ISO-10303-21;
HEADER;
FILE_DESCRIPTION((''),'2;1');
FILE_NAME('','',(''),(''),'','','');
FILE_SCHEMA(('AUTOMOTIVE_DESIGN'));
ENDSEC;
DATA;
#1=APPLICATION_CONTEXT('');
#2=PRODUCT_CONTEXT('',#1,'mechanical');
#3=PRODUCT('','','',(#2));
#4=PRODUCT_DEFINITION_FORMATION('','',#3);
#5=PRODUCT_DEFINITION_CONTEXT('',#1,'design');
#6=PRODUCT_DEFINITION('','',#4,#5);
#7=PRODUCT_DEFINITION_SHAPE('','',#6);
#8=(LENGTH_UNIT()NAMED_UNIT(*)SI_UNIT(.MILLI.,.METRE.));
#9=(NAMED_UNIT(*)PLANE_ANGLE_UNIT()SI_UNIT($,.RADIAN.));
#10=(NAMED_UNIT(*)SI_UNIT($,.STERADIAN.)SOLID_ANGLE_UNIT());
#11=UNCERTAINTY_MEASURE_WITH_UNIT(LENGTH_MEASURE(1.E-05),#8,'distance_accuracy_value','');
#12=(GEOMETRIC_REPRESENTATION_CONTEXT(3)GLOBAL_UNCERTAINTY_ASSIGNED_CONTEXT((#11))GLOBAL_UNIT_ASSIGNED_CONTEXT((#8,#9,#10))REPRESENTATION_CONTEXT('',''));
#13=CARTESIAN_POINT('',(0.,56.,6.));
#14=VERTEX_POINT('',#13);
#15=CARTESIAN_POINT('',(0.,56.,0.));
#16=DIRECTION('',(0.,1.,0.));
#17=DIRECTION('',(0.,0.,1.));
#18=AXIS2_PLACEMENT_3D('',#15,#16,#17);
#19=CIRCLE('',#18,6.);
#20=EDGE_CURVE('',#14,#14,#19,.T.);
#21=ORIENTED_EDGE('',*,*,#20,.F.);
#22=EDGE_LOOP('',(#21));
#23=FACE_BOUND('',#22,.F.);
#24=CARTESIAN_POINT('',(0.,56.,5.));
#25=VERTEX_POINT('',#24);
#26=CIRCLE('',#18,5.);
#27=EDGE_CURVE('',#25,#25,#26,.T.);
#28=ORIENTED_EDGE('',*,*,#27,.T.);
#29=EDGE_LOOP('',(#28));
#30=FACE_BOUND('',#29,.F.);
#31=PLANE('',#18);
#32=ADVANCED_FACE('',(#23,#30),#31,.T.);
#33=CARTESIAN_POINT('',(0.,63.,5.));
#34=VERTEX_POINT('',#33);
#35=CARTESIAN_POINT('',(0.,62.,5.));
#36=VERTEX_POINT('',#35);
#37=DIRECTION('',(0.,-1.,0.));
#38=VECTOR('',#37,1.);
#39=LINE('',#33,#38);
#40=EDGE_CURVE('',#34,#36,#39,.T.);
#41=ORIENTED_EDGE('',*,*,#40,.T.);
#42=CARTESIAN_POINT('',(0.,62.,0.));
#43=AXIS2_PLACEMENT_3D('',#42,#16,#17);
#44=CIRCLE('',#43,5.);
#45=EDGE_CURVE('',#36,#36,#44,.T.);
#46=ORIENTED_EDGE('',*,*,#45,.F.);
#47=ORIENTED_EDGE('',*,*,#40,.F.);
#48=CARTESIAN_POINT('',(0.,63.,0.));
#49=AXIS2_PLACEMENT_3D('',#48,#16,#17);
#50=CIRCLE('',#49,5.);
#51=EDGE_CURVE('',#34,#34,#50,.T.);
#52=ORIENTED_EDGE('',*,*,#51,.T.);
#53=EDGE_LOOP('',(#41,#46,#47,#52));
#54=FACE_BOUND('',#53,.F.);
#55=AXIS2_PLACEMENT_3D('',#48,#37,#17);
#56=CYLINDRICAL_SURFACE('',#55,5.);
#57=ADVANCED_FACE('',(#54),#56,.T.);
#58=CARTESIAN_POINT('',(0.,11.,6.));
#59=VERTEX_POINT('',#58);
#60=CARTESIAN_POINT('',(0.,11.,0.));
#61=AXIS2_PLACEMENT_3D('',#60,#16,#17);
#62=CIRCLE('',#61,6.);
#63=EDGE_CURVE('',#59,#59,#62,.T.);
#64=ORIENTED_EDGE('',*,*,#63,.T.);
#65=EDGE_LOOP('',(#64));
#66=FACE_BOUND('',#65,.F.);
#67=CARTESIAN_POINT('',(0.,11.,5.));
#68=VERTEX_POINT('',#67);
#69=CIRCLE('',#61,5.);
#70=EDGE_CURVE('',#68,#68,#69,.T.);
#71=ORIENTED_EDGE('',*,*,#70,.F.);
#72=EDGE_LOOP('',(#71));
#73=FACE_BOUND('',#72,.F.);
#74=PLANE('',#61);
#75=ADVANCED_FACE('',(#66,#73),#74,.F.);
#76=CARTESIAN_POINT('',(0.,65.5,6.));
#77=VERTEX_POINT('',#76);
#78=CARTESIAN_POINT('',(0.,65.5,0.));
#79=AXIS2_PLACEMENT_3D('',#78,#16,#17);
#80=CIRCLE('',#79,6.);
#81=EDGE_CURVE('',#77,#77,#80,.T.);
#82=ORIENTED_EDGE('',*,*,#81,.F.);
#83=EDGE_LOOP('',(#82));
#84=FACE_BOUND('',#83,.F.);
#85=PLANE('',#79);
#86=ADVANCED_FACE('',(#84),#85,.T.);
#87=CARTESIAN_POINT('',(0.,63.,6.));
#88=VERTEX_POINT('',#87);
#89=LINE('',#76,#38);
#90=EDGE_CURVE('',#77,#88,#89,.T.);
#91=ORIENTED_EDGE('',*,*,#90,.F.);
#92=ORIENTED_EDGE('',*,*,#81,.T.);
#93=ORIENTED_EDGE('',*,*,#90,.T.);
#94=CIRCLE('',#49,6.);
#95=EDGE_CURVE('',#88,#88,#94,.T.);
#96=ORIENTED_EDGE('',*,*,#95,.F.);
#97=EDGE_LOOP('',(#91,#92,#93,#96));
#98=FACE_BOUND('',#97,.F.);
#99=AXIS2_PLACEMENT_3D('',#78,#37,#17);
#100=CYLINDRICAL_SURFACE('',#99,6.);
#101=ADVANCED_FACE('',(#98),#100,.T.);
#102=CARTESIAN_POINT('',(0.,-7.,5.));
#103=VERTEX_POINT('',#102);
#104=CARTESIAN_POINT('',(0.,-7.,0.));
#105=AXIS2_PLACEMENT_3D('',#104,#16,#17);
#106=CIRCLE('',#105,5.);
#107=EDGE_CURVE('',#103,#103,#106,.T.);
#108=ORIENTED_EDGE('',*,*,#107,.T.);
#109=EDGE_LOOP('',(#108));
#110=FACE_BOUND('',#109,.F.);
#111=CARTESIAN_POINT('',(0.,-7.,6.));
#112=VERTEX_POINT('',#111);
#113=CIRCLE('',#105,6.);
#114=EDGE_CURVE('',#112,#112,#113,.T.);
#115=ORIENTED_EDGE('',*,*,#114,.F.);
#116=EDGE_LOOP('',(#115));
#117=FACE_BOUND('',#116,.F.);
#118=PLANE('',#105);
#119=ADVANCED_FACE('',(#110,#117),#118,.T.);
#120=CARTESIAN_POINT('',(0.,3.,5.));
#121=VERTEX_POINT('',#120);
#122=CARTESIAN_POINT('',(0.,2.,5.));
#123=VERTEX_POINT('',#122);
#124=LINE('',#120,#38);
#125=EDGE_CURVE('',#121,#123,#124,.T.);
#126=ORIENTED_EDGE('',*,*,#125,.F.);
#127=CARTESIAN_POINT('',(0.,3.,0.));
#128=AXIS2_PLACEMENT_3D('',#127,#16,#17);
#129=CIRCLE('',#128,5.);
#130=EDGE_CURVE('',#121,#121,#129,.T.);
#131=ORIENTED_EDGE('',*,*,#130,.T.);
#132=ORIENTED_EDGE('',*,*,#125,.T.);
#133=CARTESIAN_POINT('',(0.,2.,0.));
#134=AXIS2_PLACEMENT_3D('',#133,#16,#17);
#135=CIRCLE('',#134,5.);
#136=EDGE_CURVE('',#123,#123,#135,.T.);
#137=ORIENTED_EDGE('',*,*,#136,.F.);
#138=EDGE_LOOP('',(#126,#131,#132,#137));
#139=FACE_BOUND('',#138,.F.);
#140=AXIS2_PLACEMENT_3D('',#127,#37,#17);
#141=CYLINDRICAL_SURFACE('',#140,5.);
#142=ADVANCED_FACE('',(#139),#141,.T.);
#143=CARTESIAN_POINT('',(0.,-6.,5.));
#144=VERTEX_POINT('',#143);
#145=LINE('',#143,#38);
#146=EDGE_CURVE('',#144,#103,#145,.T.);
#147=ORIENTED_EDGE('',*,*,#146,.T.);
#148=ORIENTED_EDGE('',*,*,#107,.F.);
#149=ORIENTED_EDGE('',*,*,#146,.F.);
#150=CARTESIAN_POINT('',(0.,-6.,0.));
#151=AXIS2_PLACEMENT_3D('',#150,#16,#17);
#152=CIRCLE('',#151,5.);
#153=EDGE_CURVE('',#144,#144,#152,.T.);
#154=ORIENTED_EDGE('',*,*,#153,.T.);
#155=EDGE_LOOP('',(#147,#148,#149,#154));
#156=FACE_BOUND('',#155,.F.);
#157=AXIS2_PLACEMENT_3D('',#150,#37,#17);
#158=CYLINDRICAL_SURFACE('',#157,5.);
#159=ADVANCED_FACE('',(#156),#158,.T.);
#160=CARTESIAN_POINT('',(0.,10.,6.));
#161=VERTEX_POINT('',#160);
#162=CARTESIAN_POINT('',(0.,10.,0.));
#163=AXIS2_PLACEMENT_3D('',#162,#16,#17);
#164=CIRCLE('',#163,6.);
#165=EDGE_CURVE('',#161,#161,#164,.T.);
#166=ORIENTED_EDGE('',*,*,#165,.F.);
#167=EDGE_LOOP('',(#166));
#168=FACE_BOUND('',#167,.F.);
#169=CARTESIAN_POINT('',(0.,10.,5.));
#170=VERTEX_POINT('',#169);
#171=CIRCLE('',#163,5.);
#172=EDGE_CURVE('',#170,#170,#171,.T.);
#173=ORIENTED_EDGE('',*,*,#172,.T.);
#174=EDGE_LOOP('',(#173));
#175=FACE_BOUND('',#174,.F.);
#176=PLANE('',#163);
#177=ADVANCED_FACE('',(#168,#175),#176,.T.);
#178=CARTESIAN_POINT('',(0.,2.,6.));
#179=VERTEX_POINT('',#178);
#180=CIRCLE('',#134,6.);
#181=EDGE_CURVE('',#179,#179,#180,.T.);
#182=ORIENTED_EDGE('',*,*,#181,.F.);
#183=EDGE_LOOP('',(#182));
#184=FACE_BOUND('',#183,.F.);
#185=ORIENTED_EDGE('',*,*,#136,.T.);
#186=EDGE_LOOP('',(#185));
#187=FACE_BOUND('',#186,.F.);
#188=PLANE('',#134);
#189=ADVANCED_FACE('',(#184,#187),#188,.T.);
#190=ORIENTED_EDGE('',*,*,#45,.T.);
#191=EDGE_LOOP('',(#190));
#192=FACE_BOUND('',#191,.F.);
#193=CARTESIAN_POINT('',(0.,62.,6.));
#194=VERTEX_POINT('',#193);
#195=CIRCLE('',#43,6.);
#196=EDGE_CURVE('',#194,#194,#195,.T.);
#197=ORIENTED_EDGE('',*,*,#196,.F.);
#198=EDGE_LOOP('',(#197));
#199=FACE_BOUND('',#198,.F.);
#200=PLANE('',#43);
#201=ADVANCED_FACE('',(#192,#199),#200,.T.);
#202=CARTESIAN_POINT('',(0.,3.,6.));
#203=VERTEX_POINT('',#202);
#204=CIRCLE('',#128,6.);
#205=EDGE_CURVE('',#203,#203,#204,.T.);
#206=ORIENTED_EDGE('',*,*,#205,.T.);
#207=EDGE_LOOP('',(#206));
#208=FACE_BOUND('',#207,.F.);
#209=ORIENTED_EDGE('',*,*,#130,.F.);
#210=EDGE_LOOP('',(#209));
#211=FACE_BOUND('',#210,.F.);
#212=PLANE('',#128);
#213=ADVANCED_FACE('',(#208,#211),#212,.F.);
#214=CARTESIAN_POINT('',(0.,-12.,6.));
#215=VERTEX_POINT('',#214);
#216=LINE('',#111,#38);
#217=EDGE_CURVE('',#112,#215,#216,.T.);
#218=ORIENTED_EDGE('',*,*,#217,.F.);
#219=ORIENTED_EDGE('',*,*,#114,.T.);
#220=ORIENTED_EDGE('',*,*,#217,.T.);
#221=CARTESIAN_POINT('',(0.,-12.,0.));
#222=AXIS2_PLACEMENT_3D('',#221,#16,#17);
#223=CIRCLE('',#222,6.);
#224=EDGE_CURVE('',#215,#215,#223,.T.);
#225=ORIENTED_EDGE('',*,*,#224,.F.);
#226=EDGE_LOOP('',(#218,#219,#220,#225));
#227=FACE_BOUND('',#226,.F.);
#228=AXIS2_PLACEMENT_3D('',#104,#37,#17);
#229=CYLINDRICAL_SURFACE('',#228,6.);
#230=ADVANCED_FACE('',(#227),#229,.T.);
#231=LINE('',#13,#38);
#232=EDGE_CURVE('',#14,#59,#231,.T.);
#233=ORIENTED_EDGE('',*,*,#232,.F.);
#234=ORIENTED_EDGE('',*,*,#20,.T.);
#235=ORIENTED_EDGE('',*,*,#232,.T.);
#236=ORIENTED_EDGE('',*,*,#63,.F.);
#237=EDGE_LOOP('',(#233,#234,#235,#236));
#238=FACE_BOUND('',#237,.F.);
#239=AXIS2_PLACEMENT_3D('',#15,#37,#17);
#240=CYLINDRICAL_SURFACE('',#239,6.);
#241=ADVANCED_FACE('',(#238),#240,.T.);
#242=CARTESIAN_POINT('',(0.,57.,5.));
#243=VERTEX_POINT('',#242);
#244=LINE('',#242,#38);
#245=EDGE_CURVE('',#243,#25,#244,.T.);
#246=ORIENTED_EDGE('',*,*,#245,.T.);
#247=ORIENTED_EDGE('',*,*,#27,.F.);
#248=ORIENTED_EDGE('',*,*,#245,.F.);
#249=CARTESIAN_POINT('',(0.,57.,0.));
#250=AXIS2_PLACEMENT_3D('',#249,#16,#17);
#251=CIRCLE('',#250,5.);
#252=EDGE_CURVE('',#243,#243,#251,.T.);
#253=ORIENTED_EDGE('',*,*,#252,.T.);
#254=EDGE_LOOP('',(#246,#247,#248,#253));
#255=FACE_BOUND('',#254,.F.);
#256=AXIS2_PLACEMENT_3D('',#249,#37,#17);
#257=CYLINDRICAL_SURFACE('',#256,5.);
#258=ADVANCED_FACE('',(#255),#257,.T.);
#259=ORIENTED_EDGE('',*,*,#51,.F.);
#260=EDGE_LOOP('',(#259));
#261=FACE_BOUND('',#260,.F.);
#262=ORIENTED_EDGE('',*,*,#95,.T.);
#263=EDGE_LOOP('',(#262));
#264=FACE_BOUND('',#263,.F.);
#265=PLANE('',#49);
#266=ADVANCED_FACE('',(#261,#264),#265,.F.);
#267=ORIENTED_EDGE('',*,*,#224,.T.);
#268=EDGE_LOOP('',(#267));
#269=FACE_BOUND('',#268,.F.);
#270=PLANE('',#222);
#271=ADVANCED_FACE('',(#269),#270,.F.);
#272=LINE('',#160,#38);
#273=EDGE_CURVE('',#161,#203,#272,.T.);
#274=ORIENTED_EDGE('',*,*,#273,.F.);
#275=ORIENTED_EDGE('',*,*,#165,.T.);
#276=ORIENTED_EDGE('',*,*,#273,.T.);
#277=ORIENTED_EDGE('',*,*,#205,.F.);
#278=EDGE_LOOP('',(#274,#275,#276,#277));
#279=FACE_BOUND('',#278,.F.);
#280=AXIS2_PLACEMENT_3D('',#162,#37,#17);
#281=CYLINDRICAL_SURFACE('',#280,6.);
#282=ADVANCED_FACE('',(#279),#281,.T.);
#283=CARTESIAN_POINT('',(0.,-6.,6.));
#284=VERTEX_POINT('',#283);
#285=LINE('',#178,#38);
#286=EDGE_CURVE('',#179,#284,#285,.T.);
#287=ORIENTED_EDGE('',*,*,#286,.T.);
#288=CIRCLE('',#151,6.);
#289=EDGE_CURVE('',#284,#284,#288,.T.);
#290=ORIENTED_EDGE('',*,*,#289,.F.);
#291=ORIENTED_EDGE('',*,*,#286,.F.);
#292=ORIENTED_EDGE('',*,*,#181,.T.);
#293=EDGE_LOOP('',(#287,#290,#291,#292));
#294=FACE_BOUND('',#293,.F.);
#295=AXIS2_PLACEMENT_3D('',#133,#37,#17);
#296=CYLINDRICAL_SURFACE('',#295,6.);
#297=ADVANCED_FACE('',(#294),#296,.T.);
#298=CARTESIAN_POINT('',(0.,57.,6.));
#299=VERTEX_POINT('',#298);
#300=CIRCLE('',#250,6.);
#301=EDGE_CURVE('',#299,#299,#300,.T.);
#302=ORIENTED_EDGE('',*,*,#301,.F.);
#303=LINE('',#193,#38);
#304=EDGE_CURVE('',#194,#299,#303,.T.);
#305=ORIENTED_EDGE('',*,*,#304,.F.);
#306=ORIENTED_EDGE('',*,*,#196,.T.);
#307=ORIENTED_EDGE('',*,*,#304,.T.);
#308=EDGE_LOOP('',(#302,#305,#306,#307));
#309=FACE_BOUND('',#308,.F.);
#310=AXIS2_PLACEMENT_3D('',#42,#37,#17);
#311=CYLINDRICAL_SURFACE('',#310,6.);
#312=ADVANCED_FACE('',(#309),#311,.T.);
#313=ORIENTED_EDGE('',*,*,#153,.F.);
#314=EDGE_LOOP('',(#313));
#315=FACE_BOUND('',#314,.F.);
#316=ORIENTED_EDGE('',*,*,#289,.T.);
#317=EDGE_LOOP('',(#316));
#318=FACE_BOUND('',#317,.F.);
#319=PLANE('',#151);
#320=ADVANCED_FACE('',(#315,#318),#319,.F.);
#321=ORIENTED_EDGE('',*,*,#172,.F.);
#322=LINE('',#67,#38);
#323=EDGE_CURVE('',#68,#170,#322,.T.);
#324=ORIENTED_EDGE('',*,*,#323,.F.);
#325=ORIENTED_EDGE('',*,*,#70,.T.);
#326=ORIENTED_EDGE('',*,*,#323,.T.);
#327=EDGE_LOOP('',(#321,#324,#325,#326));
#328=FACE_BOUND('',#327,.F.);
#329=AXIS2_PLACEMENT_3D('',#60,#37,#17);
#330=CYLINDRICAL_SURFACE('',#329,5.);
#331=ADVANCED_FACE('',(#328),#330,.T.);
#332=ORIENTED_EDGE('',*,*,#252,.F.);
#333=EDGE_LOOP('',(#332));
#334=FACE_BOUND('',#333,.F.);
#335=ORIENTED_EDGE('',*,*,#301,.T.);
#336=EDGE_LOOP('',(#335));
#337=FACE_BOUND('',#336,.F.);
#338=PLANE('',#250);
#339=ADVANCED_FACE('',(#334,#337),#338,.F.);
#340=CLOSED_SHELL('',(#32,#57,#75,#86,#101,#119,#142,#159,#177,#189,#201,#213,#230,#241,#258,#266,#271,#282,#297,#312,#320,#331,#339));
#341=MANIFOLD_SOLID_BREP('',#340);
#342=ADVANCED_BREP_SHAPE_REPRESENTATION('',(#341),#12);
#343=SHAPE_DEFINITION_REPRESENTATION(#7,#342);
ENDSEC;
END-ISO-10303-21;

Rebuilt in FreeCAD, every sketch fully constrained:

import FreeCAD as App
import Part
import Sketcher
from FreeCAD import Vector
Q = App.Units.Quantity


def add_polygon(sketch, points):
    """Adds a closed chain of lines whose ends are joined by coincident constraints."""
    first, n = sketch.GeometryCount, len(points)
    for a, b in zip(points, points[1:] + points[:1]):
        sketch.addGeometry(Part.LineSegment(App.Vector(*a, 0), App.Vector(*b, 0)), False)
    for i in range(n):
        sketch.addConstraint(Sketcher.Constraint("Coincident", first + i, 2, first + (i + 1) % n, 1))

doc = App.newDocument("Part")
body = doc.addObject("PartDesign::Body", "Body")

sketch1 = doc.addObject("Sketcher::SketchObject", "Sketch")
body.addObject(sketch1)
sketch1.AttachmentSupport = (doc.YZ_Plane, [""])
sketch1.MapMode = "FlatFace"
add_polygon(sketch1, [(2, 6), (-6, 6), (-6, 5), (-7, 5), (-7, 6), (-12, 6), (-12, 0), (65.5, 0), (65.5, 6), (63, 6), (63, 5), (62, 5), (62, 6), (57, 6), (57, 5), (56, 5), (56, 6), (11, 6), (11, 5), (10, 5), (10, 6), (3, 6), (3, 5), (2, 5)])
sketch1.addConstraint([
    Sketcher.Constraint("Horizontal", 0),
    Sketcher.Constraint("Vertical", 1),
    Sketcher.Constraint("Horizontal", 2),
    Sketcher.Constraint("Vertical", 3),
    Sketcher.Constraint("Horizontal", 4),
    Sketcher.Constraint("Vertical", 5),
    Sketcher.Constraint("Horizontal", 6),
    Sketcher.Constraint("Vertical", 7),
    Sketcher.Constraint("Horizontal", 8),
    Sketcher.Constraint("Vertical", 9),
    Sketcher.Constraint("Horizontal", 10),
    Sketcher.Constraint("Vertical", 11),
    Sketcher.Constraint("Horizontal", 12),
    Sketcher.Constraint("Vertical", 13),
    Sketcher.Constraint("Horizontal", 14),
    Sketcher.Constraint("Vertical", 15),
    Sketcher.Constraint("Horizontal", 16),
    Sketcher.Constraint("Vertical", 17),
    Sketcher.Constraint("Horizontal", 18),
    Sketcher.Constraint("Vertical", 19),
    Sketcher.Constraint("Horizontal", 20),
    Sketcher.Constraint("Vertical", 21),
    Sketcher.Constraint("Horizontal", 22),
    Sketcher.Constraint("Vertical", 23),
    Sketcher.Constraint("PointOnObject", 5, 2, -1),
    Sketcher.Constraint("Horizontal", 0, 2, 3, 2),
    Sketcher.Constraint("Horizontal", 4, 2, 7, 2),
    Sketcher.Constraint("Horizontal", 2, 2, 9, 2),
    Sketcher.Constraint("Horizontal", 8, 2, 11, 2),
    Sketcher.Constraint("Horizontal", 10, 2, 13, 2),
    Sketcher.Constraint("Horizontal", 12, 2, 15, 2),
    Sketcher.Constraint("Horizontal", 14, 2, 17, 2),
    Sketcher.Constraint("Horizontal", 16, 2, 19, 2),
    Sketcher.Constraint("Horizontal", 18, 2, 21, 2),
    Sketcher.Constraint("Equal", 2, 10),
    Sketcher.Constraint("Equal", 4, 12),
    Sketcher.Constraint("Equal", 10, 14),
    Sketcher.Constraint("Equal", 14, 18),
    Sketcher.Constraint("Equal", 18, 22),
    Sketcher.Constraint("Equal", 22, 1),
    Sketcher.Constraint("DistanceX", 0, 2, 0, 1, Q("8 mm")),
    Sketcher.Constraint("DistanceX", 2, 2, 2, 1, Q("1 mm")),
    Sketcher.Constraint("DistanceX", 4, 2, 4, 1, Q("5 mm")),
    Sketcher.Constraint("DistanceX", 16, 2, 16, 1, Q("45 mm")),
    Sketcher.Constraint("DistanceX", 20, 2, 20, 1, Q("7 mm")),
    Sketcher.Constraint("DistanceY", 5, 2, 5, 1, Q("6 mm")),
    Sketcher.Constraint("DistanceX", 6, 1, 6, 2, Q("77.5 mm")),
    Sketcher.Constraint("DistanceX", 0, 2, -1, 1, Q("6 mm")),
])
revolution = doc.addObject("PartDesign::Revolution", "Revolution")
body.addObject(revolution)
revolution.Profile = sketch1
revolution.ReferenceAxis = (sketch1, ["H_Axis"])
revolution.Angle = 360

doc.recompute()
